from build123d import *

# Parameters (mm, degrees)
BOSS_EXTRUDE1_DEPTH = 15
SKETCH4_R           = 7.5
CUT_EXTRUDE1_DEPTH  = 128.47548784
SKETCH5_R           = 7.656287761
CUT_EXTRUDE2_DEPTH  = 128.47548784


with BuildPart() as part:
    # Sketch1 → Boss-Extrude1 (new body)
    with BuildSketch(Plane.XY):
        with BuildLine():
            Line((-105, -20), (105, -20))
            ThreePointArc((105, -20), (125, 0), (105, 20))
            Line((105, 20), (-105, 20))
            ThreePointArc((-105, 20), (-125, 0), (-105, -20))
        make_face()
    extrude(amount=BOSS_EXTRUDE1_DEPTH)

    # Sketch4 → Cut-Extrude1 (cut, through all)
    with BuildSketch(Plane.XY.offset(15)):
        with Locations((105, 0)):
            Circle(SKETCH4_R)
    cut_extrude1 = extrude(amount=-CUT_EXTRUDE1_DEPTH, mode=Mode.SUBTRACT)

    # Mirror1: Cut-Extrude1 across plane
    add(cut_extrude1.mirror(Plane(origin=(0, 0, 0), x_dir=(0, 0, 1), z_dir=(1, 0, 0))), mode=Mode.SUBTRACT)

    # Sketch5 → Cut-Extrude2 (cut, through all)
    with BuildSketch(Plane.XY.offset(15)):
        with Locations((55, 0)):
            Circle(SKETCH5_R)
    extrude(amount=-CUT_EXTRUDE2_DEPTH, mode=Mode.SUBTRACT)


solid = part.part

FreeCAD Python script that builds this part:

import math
import FreeCAD as App
import Part
import Sketcher
from FreeCAD import Vector

doc = App.newDocument("Part")
params = doc.addObject("Spreadsheet::Sheet", "Params")
for row, (alias, value) in enumerate([
    ("sketch1_radius", "20 mm"),
    ("sketch1_width", "210 mm"),
    ("pad1_length", "15 mm"),
    ("sketch2_diameter", "15 mm"),
], start=1):
    params.set(f"A{row}", alias)
    params.set(f"B{row}", "=" + value)
    params.setAlias(f"B{row}", alias)

body = doc.addObject("PartDesign::Body", "Body")

# Sketch on XY plane
sketch1 = doc.addObject("Sketcher::SketchObject", "Sketch")
body.addObject(sketch1)
sketch1.AttachmentSupport = (doc.XY_Plane, [""])
sketch1.MapMode = "FlatFace"
sketch1.addGeometry([
    Part.LineSegment(Vector(-105, -20, 0), Vector(105, -20, 0)),
    Part.ArcOfCircle(Part.Circle(Vector(105, 0, 0), Vector(0, 0, 1), 20), math.radians(-90), math.radians(90)),
    Part.LineSegment(Vector(105, 20, 0), Vector(-105, 20, 0)),
    Part.ArcOfCircle(Part.Circle(Vector(-105, 0, 0), Vector(0, 0, 1), 20), math.radians(90), math.radians(270)),
], False)
sketch1.addConstraint([
    Sketcher.Constraint("Tangent", 0, 2, 1, 1),
    Sketcher.Constraint("Tangent", 1, 2, 2, 1),
    Sketcher.Constraint("Tangent", 2, 2, 3, 1),
    Sketcher.Constraint("Tangent", 3, 2, 0, 1),
    Sketcher.Constraint("Horizontal", 0),
    Sketcher.Constraint("Horizontal", 2),
    Sketcher.Constraint("Symmetric", 1, 3, 3, 3, -1, 1),
    Sketcher.Constraint("Radius", 1, 20.0),
    Sketcher.Constraint("DistanceX", 0, 1, 0, 2, 210.0),
])
sketch1.setExpression("Constraints[7]", "Params.sketch1_radius")
sketch1.setExpression("Constraints[8]", "Params.sketch1_width")
pad1 = doc.addObject("PartDesign::Pad", "Pad")
body.addObject(pad1)
pad1.Profile = sketch1
pad1.setExpression("Length", "Params.pad1_length")

# Sketch on XY plane
sketch2 = doc.addObject("Sketcher::SketchObject", "Sketch001")
body.addObject(sketch2)
sketch2.AttachmentSupport = (doc.XY_Plane, [""])
sketch2.MapMode = "FlatFace"
sketch2.AttachmentOffset = App.Placement(Vector(0, 0, 15), App.Rotation())
sketch2.addGeometry(Part.Circle(Vector(105, 0, 0), Vector(0, 0, 1), 8), False)
sketch2.addConstraint([
    Sketcher.Constraint("PointOnObject", 0, 3, -1),
    Sketcher.Constraint("Diameter", 0, 15.0),
    Sketcher.Constraint("DistanceX", -1, 1, 0, 3, 105.0),
])
sketch2.setExpression("Constraints[1]", "Params.sketch2_diameter")
pocket1 = doc.addObject("PartDesign::Pocket", "Pocket")
body.addObject(pocket1)
pocket1.Profile = sketch2
pocket1.Type = "ThroughAll"
doc.recompute()

mirrored = doc.addObject("PartDesign::Mirrored", "Mirrored")
body.addObject(mirrored)
mirrored.Originals = [pocket1]
mirrored.MirrorPlane = (doc.YZ_Plane, [""])
body.Tip = mirrored

# Sketch on XY plane
sketch3 = doc.addObject("Sketcher::SketchObject", "Sketch002")
body.addObject(sketch3)
sketch3.AttachmentSupport = (doc.XY_Plane, [""])
sketch3.MapMode = "FlatFace"
sketch3.AttachmentOffset = App.Placement(Vector(0, 0, 15), App.Rotation())
sketch3.addGeometry(Part.Circle(Vector(55, 0, 0), Vector(0, 0, 1), 8), False)
sketch3.addConstraint([
    Sketcher.Constraint("PointOnObject", 0, 3, -1),
    Sketcher.Constraint("DistanceX", -1, 1, 0, 3, 55.0),
    Sketcher.Constraint("Diameter", 0, 15.312576),
])
pocket2 = doc.addObject("PartDesign::Pocket", "Pocket001")
body.addObject(pocket2)
pocket2.Profile = sketch3
pocket2.Type = "ThroughAll"

doc.recompute()
